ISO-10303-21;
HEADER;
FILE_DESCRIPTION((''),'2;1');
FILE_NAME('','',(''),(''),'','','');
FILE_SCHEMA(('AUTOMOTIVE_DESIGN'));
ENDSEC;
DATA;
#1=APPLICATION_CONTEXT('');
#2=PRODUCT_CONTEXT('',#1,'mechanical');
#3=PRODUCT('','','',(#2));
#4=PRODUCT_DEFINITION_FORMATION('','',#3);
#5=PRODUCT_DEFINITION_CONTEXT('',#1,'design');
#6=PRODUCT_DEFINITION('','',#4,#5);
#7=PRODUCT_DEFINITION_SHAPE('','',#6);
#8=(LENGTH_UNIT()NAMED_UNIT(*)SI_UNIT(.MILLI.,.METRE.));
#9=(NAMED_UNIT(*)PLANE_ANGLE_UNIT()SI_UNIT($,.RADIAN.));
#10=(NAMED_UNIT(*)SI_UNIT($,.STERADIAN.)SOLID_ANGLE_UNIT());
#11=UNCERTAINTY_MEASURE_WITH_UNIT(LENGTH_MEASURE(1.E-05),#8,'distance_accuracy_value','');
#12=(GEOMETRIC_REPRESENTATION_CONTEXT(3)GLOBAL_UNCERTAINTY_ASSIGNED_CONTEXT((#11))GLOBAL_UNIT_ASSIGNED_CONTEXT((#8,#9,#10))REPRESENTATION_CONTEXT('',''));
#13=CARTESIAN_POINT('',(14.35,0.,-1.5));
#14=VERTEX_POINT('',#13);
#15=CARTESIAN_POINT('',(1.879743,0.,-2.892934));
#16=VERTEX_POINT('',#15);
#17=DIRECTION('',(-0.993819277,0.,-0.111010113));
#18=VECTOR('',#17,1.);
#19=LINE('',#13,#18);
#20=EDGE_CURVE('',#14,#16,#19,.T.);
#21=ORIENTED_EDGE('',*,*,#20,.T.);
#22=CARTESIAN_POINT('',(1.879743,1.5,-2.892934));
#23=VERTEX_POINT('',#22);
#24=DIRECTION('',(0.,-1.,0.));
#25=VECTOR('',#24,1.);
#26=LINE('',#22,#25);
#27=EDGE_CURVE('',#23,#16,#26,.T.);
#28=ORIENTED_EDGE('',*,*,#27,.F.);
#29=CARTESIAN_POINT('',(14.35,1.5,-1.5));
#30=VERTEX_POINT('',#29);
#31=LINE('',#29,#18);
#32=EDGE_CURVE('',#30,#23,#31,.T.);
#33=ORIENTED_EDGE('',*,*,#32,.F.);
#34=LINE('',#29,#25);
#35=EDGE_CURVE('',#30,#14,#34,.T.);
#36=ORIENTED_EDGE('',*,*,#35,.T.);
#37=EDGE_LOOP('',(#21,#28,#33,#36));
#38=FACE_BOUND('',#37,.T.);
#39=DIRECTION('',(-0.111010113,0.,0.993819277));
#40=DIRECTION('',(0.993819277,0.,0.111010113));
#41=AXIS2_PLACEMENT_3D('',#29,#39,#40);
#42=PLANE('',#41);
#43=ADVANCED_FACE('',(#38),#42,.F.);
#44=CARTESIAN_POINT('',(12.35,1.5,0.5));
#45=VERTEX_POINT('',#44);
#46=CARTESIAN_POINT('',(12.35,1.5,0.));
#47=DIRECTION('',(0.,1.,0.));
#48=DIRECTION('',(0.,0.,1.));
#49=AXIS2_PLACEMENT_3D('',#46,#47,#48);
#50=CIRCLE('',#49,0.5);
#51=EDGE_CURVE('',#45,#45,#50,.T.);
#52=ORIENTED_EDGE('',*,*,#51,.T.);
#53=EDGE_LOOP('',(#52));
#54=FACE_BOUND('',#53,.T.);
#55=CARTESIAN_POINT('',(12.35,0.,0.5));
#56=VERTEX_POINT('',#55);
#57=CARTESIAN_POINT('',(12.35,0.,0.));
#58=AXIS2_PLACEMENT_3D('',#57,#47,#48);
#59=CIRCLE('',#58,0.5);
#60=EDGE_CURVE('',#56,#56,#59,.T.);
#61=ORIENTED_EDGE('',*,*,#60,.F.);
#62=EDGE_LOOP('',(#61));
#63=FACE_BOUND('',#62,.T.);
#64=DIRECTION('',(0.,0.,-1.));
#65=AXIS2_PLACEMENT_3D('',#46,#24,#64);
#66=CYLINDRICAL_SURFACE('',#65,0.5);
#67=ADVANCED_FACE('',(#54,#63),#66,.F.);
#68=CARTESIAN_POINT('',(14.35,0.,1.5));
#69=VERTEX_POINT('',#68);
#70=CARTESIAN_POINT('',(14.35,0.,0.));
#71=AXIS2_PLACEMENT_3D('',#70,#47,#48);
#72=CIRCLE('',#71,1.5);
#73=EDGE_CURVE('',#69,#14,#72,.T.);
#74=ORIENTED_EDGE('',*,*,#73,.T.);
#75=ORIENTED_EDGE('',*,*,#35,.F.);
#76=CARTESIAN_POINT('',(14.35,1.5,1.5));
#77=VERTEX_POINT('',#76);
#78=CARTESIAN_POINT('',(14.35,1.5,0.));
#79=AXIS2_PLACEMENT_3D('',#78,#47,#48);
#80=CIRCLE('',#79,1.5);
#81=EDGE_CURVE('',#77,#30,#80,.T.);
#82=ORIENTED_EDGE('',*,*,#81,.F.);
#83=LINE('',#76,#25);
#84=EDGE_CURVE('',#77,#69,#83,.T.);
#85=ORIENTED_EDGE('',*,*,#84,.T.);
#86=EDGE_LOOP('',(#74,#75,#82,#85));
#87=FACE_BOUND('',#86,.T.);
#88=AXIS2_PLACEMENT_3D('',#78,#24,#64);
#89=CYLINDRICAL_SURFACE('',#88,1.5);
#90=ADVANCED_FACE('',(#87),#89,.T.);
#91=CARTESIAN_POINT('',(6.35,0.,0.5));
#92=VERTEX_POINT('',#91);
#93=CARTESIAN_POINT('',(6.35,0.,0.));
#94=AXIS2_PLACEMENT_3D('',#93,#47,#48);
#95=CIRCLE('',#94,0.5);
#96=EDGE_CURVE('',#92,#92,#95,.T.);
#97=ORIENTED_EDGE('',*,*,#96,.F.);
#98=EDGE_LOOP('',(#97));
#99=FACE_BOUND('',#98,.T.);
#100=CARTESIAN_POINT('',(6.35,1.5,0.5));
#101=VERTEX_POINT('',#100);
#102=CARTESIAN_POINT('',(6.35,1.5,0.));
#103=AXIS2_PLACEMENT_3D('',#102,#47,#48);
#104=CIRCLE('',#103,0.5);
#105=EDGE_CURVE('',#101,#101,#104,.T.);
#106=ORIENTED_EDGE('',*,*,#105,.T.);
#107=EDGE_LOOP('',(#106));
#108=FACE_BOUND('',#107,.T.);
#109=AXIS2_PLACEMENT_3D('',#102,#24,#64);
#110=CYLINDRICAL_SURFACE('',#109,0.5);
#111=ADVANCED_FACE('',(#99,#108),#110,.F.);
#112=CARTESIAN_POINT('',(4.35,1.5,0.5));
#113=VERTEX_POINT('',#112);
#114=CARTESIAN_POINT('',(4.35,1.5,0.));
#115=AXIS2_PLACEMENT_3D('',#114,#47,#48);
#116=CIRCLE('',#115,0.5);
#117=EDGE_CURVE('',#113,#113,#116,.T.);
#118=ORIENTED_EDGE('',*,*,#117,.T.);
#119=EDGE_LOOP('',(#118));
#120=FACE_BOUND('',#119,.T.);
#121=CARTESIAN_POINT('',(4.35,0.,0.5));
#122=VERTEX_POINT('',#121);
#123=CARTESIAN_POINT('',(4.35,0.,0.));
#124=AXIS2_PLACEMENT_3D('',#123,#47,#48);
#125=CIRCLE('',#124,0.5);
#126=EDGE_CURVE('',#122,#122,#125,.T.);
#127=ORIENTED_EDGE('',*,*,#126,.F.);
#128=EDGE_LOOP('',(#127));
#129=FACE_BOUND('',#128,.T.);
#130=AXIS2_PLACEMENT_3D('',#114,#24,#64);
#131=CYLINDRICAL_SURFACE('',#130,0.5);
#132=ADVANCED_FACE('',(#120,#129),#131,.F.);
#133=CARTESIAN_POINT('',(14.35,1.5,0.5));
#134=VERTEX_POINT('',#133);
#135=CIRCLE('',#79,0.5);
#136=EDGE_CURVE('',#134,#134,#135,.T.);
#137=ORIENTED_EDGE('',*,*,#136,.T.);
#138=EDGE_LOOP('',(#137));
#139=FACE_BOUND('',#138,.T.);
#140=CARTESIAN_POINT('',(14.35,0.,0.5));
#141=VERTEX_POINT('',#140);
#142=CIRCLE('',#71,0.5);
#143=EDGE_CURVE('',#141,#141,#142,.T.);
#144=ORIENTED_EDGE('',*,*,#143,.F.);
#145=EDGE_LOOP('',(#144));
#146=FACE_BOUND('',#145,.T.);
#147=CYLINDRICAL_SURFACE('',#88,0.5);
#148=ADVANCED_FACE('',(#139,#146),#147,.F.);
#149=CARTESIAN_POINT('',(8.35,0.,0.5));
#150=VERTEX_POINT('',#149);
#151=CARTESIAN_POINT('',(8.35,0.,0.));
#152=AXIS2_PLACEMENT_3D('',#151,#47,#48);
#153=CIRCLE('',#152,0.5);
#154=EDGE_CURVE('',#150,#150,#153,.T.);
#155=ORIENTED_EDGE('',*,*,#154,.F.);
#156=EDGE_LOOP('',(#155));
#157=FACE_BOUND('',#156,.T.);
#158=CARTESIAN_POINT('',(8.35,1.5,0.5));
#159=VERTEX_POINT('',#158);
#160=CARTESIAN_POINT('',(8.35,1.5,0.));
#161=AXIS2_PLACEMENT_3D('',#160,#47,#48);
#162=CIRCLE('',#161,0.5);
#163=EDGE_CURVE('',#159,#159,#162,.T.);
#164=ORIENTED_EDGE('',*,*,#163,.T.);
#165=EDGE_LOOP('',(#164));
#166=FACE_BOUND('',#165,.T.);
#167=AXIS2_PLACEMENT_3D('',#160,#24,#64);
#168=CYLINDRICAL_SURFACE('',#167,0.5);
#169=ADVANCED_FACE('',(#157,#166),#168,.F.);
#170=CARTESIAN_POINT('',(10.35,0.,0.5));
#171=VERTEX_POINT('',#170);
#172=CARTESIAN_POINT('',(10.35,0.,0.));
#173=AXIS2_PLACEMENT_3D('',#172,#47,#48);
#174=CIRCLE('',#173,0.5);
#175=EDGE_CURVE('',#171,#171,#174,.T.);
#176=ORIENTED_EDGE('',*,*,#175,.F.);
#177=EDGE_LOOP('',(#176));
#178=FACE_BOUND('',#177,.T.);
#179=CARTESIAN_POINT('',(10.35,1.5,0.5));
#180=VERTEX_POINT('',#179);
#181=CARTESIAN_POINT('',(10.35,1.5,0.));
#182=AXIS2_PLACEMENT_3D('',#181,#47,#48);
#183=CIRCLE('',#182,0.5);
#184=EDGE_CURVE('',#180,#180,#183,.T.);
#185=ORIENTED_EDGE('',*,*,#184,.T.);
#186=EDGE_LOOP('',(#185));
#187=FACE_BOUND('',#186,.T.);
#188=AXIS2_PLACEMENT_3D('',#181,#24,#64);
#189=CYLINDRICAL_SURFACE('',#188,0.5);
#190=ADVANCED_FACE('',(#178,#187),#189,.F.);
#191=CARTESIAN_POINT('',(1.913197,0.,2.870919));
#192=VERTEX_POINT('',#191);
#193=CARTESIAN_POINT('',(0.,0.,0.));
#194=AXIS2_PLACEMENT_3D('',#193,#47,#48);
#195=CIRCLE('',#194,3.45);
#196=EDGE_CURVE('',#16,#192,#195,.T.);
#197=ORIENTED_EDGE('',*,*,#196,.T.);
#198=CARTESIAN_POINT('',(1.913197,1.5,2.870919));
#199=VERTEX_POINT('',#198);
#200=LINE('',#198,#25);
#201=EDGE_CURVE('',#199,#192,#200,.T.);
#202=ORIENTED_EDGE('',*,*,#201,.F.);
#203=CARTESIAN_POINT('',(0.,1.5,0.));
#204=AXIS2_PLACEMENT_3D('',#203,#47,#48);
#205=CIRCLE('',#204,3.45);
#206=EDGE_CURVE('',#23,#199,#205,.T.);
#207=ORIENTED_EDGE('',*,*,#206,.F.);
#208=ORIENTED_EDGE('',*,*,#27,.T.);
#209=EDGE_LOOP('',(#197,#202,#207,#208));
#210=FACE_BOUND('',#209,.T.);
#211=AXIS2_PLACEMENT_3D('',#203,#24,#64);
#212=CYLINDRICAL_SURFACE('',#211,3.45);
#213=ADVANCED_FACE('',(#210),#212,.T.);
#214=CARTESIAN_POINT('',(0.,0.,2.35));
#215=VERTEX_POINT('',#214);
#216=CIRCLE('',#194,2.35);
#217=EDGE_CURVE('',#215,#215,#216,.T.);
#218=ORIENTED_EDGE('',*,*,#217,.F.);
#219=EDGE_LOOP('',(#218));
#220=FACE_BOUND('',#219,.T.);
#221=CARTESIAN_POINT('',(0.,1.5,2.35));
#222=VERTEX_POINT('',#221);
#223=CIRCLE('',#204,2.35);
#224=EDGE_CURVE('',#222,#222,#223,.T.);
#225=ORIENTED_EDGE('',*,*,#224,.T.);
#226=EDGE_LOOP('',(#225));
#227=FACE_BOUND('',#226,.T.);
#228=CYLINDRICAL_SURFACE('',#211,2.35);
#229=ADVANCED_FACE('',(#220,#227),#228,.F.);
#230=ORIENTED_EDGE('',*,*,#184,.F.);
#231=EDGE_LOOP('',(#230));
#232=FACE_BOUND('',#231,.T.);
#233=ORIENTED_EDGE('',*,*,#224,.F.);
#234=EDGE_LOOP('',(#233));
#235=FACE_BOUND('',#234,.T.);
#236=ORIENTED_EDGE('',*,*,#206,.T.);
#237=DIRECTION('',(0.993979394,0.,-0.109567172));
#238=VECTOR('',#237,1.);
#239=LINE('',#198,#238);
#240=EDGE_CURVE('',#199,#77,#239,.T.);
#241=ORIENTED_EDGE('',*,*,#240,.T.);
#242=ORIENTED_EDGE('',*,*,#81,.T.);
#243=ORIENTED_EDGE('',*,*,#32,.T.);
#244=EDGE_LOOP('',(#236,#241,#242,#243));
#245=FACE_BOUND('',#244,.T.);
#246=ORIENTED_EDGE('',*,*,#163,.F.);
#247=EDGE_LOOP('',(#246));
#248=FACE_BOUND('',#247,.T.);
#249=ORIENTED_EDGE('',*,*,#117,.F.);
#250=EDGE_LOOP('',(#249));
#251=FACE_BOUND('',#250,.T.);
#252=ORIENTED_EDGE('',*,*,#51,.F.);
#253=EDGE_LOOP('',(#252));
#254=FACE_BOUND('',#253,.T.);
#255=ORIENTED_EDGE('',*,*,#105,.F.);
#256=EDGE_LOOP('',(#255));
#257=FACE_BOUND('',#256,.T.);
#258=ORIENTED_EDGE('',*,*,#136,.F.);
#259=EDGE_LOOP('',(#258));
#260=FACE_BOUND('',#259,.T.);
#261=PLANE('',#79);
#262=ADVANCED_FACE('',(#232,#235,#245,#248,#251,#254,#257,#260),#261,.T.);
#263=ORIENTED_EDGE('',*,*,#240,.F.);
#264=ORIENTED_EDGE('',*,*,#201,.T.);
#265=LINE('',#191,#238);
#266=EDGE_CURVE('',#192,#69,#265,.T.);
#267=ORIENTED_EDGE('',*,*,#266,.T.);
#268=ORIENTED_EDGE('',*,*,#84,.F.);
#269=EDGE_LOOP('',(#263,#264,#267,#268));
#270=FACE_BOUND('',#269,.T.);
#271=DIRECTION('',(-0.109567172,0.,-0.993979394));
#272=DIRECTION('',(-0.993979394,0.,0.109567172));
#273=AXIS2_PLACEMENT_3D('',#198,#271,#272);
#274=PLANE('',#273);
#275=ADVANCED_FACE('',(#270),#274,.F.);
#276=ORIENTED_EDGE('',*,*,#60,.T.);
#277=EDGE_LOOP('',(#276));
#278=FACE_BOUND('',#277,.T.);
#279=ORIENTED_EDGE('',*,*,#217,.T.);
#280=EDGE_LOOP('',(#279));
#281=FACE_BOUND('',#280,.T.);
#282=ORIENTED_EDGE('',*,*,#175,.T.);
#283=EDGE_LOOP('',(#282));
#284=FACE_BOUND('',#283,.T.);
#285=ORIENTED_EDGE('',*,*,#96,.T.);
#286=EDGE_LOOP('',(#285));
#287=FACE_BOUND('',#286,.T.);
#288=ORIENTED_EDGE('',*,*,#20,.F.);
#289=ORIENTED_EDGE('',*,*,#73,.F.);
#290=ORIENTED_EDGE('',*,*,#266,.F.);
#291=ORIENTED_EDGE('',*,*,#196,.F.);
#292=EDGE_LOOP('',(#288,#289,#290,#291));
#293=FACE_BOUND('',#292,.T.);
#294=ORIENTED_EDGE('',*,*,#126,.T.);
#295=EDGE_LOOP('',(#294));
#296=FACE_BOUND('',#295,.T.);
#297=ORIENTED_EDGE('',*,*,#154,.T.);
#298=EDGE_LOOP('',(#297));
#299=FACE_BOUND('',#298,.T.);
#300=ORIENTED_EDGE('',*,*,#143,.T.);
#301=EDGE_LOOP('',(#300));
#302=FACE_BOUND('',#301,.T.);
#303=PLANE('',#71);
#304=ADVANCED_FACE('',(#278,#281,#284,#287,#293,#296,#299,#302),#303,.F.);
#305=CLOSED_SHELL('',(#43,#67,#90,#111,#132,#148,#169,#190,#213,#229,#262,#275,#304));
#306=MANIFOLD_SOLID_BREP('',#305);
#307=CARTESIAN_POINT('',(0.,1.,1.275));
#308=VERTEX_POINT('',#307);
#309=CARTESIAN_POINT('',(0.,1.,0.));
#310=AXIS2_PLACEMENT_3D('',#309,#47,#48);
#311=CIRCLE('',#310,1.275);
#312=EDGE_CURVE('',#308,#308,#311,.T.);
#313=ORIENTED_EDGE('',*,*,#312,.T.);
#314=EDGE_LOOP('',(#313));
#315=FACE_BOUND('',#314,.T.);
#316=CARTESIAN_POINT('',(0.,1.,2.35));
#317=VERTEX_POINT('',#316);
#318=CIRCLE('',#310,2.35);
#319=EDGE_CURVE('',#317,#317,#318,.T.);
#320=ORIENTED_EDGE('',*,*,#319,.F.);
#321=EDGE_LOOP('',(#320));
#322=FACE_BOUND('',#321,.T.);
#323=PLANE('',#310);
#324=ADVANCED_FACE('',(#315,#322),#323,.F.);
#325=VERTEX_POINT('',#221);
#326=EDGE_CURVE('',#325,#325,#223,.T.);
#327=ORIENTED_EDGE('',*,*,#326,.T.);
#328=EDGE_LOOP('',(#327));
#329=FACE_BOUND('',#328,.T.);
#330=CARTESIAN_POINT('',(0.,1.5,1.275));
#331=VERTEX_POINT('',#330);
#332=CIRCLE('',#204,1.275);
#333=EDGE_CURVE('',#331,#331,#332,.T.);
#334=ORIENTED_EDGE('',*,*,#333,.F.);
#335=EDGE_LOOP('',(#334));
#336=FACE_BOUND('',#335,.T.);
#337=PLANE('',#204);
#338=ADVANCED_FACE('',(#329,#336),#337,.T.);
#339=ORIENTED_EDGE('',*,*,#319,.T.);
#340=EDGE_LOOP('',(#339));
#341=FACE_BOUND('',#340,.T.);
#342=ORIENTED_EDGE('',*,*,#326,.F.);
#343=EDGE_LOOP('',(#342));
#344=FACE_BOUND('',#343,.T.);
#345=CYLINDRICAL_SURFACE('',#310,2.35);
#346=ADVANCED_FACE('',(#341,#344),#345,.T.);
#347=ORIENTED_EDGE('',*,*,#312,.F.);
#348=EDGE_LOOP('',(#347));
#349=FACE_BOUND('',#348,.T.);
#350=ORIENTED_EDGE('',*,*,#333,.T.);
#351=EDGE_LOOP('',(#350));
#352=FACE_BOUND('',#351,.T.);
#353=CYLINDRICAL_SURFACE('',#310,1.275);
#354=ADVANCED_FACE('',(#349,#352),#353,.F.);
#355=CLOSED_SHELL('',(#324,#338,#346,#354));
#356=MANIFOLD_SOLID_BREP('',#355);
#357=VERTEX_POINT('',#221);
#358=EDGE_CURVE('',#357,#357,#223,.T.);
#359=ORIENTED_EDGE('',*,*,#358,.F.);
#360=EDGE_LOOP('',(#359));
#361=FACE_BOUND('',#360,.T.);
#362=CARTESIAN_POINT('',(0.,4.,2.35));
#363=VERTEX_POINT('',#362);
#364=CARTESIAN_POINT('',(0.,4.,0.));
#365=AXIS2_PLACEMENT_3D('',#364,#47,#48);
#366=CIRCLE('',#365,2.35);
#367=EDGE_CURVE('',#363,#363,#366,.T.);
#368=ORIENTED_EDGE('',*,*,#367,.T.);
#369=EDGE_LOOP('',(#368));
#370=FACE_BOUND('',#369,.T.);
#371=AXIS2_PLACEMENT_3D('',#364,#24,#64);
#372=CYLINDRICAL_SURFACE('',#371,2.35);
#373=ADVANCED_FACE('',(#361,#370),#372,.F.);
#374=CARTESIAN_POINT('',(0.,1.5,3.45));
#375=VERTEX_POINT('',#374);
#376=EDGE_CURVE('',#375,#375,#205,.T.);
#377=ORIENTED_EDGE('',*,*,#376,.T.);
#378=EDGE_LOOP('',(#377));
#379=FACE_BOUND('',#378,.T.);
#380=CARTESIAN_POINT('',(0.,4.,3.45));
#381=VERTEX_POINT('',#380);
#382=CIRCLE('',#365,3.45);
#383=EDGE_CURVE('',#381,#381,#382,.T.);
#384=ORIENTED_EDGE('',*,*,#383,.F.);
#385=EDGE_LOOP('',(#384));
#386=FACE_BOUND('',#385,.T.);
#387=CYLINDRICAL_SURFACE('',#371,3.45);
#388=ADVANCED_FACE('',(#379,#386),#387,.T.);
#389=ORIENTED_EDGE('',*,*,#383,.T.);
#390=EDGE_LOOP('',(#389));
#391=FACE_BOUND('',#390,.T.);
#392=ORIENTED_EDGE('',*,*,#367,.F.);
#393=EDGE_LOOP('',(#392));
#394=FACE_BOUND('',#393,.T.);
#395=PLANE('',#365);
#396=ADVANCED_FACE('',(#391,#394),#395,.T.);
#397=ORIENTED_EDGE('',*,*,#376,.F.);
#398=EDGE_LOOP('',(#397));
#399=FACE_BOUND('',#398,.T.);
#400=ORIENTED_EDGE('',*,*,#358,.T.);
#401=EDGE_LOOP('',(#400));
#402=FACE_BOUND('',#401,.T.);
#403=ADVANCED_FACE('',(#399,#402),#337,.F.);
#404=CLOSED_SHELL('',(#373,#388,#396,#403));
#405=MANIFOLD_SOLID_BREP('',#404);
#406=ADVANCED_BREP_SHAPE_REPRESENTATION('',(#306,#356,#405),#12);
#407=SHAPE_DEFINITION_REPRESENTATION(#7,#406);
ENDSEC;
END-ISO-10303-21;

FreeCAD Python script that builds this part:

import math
import FreeCAD as App
import Part
import Sketcher
Q = App.Units.Quantity

doc = App.newDocument("Part")
params = doc.addObject("Spreadsheet::Sheet", "Params")
for row, (alias, value) in enumerate([
    ("sketch1_diameter", "1 mm"),
    ("sketch1_diameter2", "4.7 mm"),
    ("sketch1_radius", "1.5 mm"),
    ("sketch1_radius2", "3.45 mm"),
    ("pad1_length", "1.5 mm"),
    ("sketch2_diameter", "4.7 mm"),
    ("sketch2_diameter2", "2.55 mm"),
    ("pad2_length", "0.5 mm"),
    ("sketch3_diameter", "6.9 mm"),
    ("sketch3_diameter2", "4.7 mm"),
    ("pad3_length", "2.5 mm"),
], start=1):
    params.set(f"A{row}", alias)
    params.set(f"B{row}", "=" + value)
    params.setAlias(f"B{row}", alias)

body = doc.addObject("PartDesign::Body", "Body")

# Sketch on XZ plane
sketch1 = doc.addObject("Sketcher::SketchObject", "Sketch")
body.addObject(sketch1)
sketch1.AttachmentSupport = (doc.XZ_Plane, [""])
sketch1.MapMode = "FlatFace"
sketch1.addGeometry([
    Part.LineSegment(App.Vector(14.3, -1.5, 0), App.Vector(1.9, -2.9, 0)),  # 0
    Part.ArcOfCircle(Part.Circle(App.Vector(0, 0, 0), App.Vector(0, 0, 1), 3.5), math.radians(56), math.radians(303)),  # 1
    Part.LineSegment(App.Vector(1.9, 2.9, 0), App.Vector(14.3, 1.5, 0)),  # 2
    Part.ArcOfCircle(Part.Circle(App.Vector(14.3, 0, 0), App.Vector(0, 0, 1), 1.5), math.radians(-90), math.radians(90)),  # 3
    Part.Circle(App.Vector(0, 0, 0), App.Vector(0, 0, 1), 2.4),  # 4
    Part.Circle(App.Vector(4.3, 0, 0), App.Vector(0, 0, 1), 0.5),  # 5
    Part.Circle(App.Vector(6.3, 0, 0), App.Vector(0, 0, 1), 0.5),  # 6
    Part.Circle(App.Vector(8.3, 0, 0), App.Vector(0, 0, 1), 0.5),  # 7
    Part.Circle(App.Vector(10.3, 0, 0), App.Vector(0, 0, 1), 0.5),  # 8
    Part.Circle(App.Vector(12.3, 0, 0), App.Vector(0, 0, 1), 0.5),  # 9
    Part.Circle(App.Vector(14.3, 0, 0), App.Vector(0, 0, 1), 0.5),  # 10
], False)
sketch1.addConstraint([
    Sketcher.Constraint("Coincident", 0, 2, 1, 2),
    Sketcher.Constraint("Coincident", 1, 1, 2, 1),
    Sketcher.Constraint("Coincident", 2, 2, 3, 2),
    Sketcher.Constraint("Coincident", 3, 1, 0, 1),
    Sketcher.Constraint("Coincident", 1, 3, -1, 1),
    Sketcher.Constraint("Coincident", 4, 3, -1, 1),
    Sketcher.Constraint("Coincident", 10, 3, 3, 3),
    Sketcher.Constraint("Equal", 5, 6),
    Sketcher.Constraint("Equal", 6, 7),
    Sketcher.Constraint("Equal", 7, 8),
    Sketcher.Constraint("Equal", 8, 9),
    Sketcher.Constraint("Equal", 9, 10),
    Sketcher.Constraint("Symmetric", 2, 2, 3, 1, -1),
    Sketcher.Constraint("PointOnObject", 5, 3, -1),
    Sketcher.Constraint("PointOnObject", 6, 3, -1),
    Sketcher.Constraint("PointOnObject", 7, 3, -1),
    Sketcher.Constraint("PointOnObject", 8, 3, -1),
    Sketcher.Constraint("PointOnObject", 9, 3, -1),
    Sketcher.Constraint("Vertical", 10, 3, 2, 2),
    Sketcher.Constraint("Diameter", 5, Q("1 mm")),
    Sketcher.Constraint("Diameter", 4, Q("4.7 mm")),
    Sketcher.Constraint("Radius", 3, Q("1.5 mm")),
    Sketcher.Constraint("Radius", 1, Q("3.45 mm")),
    Sketcher.Constraint("DistanceX", 5, 3, 3, 3, Q("10 mm")),
    Sketcher.Constraint("DistanceX", 5, 3, 6, 3, Q("2 mm")),
    Sketcher.Constraint("DistanceX", 6, 3, 7, 3, Q("2 mm")),
    Sketcher.Constraint("DistanceX", 7, 3, 8, 3, Q("2 mm")),
    Sketcher.Constraint("DistanceX", 9, 3, 3, 3, Q("2 mm")),
    Sketcher.Constraint("DistanceX", -1, 1, 3, 3, Q("14.35 mm")),
    Sketcher.Constraint("Distance", 0, Q("12.547812 mm")),
    Sketcher.Constraint("DistanceY", -1, 1, 1, 1, Q("2.870919 mm")),
])
sketch1.setExpression("Constraints[19]", "Params.sketch1_diameter")
sketch1.setExpression("Constraints[20]", "Params.sketch1_diameter2")
sketch1.setExpression("Constraints[21]", "Params.sketch1_radius")
sketch1.setExpression("Constraints[22]", "Params.sketch1_radius2")
pad1 = doc.addObject("PartDesign::Pad", "Pad")
body.addObject(pad1)
pad1.Profile = sketch1
pad1.setExpression("Length", "Params.pad1_length")
pad1.Reversed = True
body2 = doc.addObject("PartDesign::Body", "Body001")

# Sketch on XZ plane
sketch2 = doc.addObject("Sketcher::SketchObject", "Sketch001")
body2.addObject(sketch2)
sketch2.AttachmentSupport = (doc.getObject("XZ_Plane001"), [""])
sketch2.MapMode = "FlatFace"
sketch2.AttachmentOffset = App.Placement(App.Vector(0, 0, -1.5), App.Rotation())
sketch2.addGeometry([
    Part.Circle(App.Vector(0, 0, 0), App.Vector(0, 0, 1), 2.4),
    Part.Circle(App.Vector(0, 0, 0), App.Vector(0, 0, 1), 1.3),
], False)
sketch2.addConstraint([
    Sketcher.Constraint("Coincident", 0, 3, -1, 1),
    Sketcher.Constraint("Coincident", 1, 3, -1, 1),
    Sketcher.Constraint("Diameter", 0, Q("4.7 mm")),
    Sketcher.Constraint("Diameter", 1, Q("2.55 mm")),
])
sketch2.setExpression("Constraints[2]", "Params.sketch2_diameter")
sketch2.setExpression("Constraints[3]", "Params.sketch2_diameter2")
pad2 = doc.addObject("PartDesign::Pad", "Pad001")
body2.addObject(pad2)
pad2.Profile = sketch2
pad2.setExpression("Length", "Params.pad2_length")
body3 = doc.addObject("PartDesign::Body", "Body002")

# Sketch on XZ plane
sketch3 = doc.addObject("Sketcher::SketchObject", "Sketch002")
body3.addObject(sketch3)
sketch3.AttachmentSupport = (doc.getObject("XZ_Plane002"), [""])
sketch3.MapMode = "FlatFace"
sketch3.AttachmentOffset = App.Placement(App.Vector(0, 0, -1.5), App.Rotation())
sketch3.addGeometry([
    Part.Circle(App.Vector(0, 0, 0), App.Vector(0, 0, 1), 3.5),
    Part.Circle(App.Vector(0, 0, 0), App.Vector(0, 0, 1), 2.4),
], False)
sketch3.addConstraint([
    Sketcher.Constraint("Coincident", 0, 3, -1, 1),
    Sketcher.Constraint("Coincident", 1, 3, -1, 1),
    Sketcher.Constraint("Diameter", 0, Q("6.9 mm")),
    Sketcher.Constraint("Diameter", 1, Q("4.7 mm")),
])
sketch3.setExpression("Constraints[2]", "Params.sketch3_diameter")
sketch3.setExpression("Constraints[3]", "Params.sketch3_diameter2")
pad3 = doc.addObject("PartDesign::Pad", "Pad002")
body3.addObject(pad3)
pad3.Profile = sketch3
pad3.setExpression("Length", "Params.pad3_length")
pad3.Reversed = True

doc.recompute()
